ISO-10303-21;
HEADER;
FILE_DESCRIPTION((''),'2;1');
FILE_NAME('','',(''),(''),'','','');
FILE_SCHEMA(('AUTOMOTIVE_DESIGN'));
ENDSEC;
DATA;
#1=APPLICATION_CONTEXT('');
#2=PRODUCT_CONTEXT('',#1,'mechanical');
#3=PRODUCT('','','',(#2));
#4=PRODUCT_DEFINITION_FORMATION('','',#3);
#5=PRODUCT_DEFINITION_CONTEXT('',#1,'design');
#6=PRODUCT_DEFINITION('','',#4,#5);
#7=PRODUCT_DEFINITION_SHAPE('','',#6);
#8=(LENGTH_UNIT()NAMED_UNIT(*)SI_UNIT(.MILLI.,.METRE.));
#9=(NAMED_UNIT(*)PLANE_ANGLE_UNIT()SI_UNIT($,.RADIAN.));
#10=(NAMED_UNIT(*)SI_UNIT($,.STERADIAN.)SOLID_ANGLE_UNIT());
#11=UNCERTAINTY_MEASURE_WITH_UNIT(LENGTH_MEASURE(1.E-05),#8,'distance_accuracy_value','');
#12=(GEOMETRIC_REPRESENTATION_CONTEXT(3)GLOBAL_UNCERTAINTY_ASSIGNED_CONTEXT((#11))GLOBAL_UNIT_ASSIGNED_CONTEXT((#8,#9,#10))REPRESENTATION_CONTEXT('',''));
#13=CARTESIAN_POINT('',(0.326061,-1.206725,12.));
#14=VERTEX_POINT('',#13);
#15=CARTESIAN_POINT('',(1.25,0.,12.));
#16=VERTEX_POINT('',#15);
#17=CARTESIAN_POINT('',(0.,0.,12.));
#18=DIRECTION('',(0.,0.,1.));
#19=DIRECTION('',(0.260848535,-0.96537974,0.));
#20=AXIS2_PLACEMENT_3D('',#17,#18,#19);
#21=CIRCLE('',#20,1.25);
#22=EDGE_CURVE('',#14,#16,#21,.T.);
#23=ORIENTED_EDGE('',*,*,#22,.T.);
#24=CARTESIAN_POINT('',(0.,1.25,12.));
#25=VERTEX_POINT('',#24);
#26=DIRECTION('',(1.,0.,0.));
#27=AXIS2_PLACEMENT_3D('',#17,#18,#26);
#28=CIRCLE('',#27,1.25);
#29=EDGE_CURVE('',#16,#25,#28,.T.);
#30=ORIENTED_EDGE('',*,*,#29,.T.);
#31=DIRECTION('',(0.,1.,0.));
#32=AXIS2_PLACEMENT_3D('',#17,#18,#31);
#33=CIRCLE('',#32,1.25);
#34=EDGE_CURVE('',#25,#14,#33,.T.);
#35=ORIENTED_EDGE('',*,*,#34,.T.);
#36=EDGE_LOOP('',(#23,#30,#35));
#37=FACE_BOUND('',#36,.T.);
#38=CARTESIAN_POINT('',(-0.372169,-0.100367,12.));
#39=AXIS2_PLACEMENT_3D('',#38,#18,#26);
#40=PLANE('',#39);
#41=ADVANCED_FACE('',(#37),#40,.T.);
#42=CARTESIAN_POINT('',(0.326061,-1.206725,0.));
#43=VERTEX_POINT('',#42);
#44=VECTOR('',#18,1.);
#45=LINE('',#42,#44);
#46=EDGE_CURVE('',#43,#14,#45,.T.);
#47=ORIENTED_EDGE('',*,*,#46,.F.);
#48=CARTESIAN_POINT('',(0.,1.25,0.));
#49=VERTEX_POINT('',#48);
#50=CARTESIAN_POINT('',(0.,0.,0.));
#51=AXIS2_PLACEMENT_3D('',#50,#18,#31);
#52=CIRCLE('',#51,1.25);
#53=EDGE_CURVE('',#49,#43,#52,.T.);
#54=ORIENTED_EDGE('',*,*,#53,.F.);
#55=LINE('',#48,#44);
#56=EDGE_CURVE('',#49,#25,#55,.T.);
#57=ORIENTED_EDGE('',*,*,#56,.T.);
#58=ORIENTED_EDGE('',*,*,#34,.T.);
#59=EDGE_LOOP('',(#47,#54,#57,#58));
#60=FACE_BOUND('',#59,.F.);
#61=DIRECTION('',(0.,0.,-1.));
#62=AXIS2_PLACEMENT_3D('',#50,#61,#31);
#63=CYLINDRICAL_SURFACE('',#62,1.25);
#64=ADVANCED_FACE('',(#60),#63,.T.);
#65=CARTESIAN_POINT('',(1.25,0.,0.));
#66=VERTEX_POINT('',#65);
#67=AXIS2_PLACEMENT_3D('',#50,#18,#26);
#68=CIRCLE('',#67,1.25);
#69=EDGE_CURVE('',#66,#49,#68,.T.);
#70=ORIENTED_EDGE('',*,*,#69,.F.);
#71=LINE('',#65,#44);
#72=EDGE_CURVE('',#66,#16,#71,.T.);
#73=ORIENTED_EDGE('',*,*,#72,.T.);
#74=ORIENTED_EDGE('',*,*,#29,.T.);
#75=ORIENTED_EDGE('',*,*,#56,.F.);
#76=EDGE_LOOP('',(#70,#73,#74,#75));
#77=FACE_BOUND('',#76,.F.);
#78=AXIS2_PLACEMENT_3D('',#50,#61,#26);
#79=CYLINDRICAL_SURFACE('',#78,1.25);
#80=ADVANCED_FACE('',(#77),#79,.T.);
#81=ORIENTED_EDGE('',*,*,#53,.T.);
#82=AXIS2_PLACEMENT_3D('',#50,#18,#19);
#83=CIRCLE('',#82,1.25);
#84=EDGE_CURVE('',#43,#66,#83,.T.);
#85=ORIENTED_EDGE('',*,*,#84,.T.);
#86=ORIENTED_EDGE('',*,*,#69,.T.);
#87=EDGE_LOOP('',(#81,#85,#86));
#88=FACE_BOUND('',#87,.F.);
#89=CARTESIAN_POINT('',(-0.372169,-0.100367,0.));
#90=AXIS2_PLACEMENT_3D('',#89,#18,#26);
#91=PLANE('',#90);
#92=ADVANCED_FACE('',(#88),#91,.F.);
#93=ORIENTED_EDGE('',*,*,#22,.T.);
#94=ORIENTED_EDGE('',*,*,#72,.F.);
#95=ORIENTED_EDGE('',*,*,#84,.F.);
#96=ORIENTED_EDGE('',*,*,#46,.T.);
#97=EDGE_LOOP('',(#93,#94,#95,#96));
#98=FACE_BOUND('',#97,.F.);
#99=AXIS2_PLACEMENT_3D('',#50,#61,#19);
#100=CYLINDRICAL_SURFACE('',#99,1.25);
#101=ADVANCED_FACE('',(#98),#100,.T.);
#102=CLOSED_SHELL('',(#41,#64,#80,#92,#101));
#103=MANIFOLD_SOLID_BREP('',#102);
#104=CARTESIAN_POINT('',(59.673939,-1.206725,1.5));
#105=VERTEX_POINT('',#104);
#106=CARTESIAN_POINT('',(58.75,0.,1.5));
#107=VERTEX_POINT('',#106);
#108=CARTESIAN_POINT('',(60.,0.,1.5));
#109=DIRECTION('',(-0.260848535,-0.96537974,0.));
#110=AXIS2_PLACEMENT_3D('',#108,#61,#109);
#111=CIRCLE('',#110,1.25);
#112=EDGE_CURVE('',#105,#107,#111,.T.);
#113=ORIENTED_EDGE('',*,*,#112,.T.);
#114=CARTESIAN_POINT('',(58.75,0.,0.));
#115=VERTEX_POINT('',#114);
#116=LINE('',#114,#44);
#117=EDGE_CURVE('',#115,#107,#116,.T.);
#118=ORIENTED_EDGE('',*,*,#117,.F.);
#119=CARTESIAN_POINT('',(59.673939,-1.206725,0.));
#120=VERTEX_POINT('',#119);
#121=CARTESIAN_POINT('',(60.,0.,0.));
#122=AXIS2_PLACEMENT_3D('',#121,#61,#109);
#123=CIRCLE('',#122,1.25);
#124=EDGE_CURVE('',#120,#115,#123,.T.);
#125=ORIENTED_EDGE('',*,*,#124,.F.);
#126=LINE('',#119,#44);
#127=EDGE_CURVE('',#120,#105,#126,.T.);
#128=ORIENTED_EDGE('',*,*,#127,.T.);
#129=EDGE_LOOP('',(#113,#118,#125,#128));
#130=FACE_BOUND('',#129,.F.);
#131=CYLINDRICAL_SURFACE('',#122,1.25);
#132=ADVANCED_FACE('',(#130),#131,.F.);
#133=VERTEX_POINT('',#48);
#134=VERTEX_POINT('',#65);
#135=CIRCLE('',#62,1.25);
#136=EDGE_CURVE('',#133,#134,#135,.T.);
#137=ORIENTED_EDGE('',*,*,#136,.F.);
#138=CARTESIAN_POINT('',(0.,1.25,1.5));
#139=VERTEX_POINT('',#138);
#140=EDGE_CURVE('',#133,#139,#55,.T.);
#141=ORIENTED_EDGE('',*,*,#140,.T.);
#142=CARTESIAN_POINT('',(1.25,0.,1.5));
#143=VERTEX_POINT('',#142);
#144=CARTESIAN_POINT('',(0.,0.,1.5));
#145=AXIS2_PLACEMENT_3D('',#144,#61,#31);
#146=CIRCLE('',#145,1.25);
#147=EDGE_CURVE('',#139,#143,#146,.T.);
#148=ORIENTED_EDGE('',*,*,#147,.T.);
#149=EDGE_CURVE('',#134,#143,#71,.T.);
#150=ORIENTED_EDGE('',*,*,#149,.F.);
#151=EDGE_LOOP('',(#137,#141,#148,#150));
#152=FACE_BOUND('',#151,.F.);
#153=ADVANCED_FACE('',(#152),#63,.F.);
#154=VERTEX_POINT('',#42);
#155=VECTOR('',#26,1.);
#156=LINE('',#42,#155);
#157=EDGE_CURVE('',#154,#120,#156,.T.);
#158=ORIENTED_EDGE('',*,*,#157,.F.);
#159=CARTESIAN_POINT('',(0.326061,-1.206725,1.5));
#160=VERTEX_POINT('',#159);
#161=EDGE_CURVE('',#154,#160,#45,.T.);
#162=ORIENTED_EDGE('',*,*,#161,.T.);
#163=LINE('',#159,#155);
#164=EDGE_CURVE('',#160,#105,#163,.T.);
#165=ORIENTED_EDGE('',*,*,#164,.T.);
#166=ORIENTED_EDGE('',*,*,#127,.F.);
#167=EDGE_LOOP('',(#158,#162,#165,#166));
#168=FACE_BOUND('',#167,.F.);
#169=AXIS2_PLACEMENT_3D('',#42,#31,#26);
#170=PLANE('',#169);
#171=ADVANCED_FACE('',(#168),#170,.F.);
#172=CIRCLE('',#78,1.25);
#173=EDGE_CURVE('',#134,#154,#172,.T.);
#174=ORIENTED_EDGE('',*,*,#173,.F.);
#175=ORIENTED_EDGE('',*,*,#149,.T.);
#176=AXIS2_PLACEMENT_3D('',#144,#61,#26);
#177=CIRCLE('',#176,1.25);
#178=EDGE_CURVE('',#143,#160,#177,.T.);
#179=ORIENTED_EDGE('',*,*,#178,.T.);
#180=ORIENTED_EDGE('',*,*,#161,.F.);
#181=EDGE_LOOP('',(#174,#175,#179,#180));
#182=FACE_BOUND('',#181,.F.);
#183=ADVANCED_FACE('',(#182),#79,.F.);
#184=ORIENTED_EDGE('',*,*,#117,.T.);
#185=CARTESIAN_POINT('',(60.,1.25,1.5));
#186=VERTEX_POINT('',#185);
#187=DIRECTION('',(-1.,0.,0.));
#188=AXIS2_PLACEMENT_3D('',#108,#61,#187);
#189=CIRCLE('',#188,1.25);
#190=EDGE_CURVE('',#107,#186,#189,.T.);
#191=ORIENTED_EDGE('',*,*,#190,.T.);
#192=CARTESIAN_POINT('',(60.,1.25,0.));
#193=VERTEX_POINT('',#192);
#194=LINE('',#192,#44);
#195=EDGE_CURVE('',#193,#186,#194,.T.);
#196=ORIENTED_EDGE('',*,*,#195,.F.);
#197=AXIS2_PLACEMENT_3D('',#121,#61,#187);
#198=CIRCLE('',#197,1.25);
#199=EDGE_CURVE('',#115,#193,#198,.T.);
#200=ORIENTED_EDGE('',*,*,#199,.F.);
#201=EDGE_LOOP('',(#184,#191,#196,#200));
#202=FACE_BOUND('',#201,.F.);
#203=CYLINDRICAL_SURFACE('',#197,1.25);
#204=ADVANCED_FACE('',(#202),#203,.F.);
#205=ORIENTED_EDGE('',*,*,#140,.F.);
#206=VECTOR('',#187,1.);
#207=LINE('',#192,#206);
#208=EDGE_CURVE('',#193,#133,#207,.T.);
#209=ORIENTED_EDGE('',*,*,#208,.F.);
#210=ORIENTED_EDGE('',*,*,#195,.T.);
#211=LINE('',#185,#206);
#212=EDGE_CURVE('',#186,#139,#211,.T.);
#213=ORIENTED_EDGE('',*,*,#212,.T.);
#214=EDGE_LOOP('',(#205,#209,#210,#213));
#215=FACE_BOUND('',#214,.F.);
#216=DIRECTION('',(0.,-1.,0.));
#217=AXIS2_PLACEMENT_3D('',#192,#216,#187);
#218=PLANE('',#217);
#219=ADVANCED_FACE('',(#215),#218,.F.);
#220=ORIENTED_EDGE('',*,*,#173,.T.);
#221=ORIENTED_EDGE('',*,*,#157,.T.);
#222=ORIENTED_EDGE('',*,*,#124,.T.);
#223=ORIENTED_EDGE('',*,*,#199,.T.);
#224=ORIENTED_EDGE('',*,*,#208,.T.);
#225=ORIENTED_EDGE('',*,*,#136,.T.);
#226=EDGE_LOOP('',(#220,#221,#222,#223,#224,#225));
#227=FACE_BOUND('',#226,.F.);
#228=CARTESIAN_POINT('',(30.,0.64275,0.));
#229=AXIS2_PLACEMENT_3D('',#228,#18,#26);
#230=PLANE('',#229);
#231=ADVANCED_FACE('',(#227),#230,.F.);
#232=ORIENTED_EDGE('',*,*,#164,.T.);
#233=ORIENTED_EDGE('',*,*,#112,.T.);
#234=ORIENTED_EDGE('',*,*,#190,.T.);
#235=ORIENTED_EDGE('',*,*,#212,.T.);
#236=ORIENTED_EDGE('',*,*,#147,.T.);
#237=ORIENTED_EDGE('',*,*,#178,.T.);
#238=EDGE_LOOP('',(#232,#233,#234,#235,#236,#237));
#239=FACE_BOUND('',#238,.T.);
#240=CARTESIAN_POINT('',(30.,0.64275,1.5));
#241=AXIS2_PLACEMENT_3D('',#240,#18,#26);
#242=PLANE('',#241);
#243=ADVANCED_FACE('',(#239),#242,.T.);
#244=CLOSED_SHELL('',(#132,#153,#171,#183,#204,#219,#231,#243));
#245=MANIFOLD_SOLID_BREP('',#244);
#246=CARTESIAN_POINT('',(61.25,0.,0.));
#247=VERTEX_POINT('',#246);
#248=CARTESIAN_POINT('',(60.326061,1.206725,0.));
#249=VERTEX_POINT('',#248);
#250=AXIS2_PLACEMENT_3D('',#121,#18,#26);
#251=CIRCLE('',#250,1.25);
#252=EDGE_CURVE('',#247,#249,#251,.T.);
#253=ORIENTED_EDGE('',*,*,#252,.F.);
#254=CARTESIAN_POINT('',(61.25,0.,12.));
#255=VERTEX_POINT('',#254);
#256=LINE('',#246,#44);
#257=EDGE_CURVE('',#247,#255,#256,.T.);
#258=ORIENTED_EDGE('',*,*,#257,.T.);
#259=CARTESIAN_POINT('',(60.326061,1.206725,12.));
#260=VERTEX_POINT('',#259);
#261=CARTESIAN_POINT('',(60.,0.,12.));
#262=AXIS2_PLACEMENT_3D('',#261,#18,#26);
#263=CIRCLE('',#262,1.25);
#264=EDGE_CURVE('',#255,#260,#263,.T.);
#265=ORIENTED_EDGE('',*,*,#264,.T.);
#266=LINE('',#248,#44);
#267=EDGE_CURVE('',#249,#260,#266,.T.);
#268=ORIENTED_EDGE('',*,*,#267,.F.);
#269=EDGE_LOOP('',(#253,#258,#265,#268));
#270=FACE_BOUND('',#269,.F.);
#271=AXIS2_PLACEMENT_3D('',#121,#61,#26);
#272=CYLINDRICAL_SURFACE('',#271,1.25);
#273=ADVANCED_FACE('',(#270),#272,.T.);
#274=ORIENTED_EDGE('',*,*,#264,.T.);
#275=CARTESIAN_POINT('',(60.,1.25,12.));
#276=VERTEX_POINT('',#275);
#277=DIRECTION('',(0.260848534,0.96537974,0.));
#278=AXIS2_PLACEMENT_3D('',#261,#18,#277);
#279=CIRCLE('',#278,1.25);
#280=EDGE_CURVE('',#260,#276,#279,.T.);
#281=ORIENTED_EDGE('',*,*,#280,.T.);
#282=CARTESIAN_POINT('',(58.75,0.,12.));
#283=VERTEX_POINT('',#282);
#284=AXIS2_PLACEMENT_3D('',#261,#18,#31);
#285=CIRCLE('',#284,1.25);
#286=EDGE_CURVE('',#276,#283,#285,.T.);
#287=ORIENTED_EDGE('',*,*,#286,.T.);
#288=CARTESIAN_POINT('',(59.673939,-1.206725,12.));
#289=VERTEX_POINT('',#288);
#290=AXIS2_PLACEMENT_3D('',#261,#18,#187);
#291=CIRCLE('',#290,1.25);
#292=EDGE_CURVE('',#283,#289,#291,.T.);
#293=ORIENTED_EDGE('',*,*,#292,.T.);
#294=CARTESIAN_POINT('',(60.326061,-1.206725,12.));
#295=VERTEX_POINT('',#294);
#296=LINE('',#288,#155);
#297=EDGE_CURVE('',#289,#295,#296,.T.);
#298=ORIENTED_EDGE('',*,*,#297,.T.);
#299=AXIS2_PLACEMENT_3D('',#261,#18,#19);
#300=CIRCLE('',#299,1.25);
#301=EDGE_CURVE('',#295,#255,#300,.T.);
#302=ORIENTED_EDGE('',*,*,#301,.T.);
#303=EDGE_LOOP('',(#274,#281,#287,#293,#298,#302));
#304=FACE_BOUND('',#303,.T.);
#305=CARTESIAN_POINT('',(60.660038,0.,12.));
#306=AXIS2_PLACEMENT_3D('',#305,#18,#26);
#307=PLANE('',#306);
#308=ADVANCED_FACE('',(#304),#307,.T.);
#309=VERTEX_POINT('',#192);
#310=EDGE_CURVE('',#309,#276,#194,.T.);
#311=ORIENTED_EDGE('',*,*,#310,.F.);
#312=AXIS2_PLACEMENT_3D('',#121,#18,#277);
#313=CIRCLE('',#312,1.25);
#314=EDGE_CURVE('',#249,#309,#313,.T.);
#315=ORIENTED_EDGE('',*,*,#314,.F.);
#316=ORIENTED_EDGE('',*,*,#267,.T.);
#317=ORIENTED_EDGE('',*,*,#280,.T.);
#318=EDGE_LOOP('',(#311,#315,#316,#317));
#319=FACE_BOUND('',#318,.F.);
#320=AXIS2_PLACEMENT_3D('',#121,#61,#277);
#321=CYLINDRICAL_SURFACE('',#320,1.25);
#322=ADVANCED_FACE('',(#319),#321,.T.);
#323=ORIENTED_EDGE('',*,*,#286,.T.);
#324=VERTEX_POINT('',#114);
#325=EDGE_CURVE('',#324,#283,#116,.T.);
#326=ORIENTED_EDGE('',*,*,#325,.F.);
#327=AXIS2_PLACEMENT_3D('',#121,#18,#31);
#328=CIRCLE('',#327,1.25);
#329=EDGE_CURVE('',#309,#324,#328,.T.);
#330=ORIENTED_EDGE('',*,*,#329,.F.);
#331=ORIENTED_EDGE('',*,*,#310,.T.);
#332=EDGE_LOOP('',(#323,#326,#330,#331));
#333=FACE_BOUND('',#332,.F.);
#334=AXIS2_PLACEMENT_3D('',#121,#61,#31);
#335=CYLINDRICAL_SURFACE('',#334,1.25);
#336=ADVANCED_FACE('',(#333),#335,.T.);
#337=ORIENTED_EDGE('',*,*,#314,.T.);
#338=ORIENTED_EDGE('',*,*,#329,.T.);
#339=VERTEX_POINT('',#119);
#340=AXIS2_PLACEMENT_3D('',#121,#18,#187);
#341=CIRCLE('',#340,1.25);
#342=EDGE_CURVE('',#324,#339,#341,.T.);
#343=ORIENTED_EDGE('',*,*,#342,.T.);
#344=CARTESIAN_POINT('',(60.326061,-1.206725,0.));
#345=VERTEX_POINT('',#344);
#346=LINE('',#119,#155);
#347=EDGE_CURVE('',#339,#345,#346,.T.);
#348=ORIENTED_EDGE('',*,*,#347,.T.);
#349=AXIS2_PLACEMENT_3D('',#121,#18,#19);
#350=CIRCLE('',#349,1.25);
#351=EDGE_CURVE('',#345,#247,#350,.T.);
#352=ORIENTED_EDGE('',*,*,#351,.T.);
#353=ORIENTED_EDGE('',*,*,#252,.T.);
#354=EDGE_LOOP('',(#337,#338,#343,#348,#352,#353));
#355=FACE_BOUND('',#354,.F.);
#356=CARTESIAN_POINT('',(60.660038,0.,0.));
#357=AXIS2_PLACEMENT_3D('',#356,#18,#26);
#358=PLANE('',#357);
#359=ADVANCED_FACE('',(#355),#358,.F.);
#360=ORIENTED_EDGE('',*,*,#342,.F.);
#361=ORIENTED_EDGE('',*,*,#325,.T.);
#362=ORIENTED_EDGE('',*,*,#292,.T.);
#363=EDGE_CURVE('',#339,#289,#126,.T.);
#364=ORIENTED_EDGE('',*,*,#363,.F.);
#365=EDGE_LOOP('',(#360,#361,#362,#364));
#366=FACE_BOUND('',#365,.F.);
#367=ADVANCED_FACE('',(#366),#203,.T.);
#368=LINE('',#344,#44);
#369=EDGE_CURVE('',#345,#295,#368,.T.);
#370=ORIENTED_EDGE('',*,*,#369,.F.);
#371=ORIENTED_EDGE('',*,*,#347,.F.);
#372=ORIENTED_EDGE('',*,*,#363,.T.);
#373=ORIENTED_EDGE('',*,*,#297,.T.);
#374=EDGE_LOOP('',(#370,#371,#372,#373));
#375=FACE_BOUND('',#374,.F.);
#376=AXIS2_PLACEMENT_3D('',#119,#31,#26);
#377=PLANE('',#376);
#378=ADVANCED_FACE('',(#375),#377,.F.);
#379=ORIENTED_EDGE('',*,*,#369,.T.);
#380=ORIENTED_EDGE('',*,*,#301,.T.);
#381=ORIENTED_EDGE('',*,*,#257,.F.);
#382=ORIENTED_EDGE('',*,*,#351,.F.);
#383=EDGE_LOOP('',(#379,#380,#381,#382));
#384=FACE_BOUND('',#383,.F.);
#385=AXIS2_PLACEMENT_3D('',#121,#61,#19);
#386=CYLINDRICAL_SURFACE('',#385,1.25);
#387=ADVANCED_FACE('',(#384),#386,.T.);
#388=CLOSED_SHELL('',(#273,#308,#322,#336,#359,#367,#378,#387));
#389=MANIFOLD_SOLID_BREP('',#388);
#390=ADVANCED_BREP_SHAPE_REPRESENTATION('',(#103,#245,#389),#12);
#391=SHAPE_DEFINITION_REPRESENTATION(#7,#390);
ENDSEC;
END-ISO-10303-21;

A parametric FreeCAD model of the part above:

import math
import FreeCAD as App
import Part
import Sketcher

V = App.Vector

doc = App.newDocument("Part")
body = doc.addObject("PartDesign::Body", "Body")

# Sketch on XY plane
sketch1 = body.newObject("Sketcher::SketchObject", "Sketch")
sketch1.AttachmentSupport = (doc.getObject("XY_Plane"), [""])
sketch1.MapMode = "FlatFace"
sketch1.addGeometry(Part.ArcOfCircle(Part.Circle(V(0, 0, 0), V(0, 0, 1), 1.2), math.radians(90), math.radians(285)), False)
sketch1.addGeometry(Part.ArcOfCircle(Part.Circle(V(0, 0, 0), V(0, 0, 1), 1.2), math.radians(-75), math.radians(0)), False)
sketch1.addGeometry(Part.ArcOfCircle(Part.Circle(V(0, 0, 0), V(0, 0, 1), 1.2), math.radians(0), math.radians(90)), False)
sketch1.addConstraint(Sketcher.Constraint("Tangent", 0, 2, 1, 1))
sketch1.addConstraint(Sketcher.Constraint("Tangent", 1, 2, 2, 1))
sketch1.addConstraint(Sketcher.Constraint("Tangent", 2, 2, 0, 1))
sketch1.addConstraint(Sketcher.Constraint("Coincident", 0, 3, -1, 1))
sketch1.addConstraint(Sketcher.Constraint("PointOnObject", 1, 2, -1))
sketch1.addConstraint(Sketcher.Constraint("PointOnObject", 2, 2, -2))
sketch1.addConstraint(Sketcher.Constraint("Radius", 0, 1.25))
sketch1.addConstraint(Sketcher.Constraint("DistanceX", -1, 1, 0, 2, 0.326061))
pad1 = body.newObject("PartDesign::Pad", "Pad")
pad1.Profile = sketch1
pad1.Length = 12
body2 = doc.addObject("PartDesign::Body", "Body001")

# Sketch on XY plane
sketch2 = body2.newObject("Sketcher::SketchObject", "Sketch001")
sketch2.AttachmentSupport = (doc.getObject("XY_Plane001"), [""])
sketch2.MapMode = "FlatFace"
sketch2.addGeometry(Part.ArcOfCircle(Part.Circle(V(60, 0, 0), V(0, 0, 1), 1.25), math.radians(0), math.radians(75)), False)
sketch2.addGeometry(Part.ArcOfCircle(Part.Circle(V(60, 0, 0), V(0, 0, 1), 1.25), math.radians(74.88), math.radians(90)), False)
sketch2.addGeometry(Part.ArcOfCircle(Part.Circle(V(60, 0, 0), V(0, 0, 1), 1.25), math.radians(90), math.radians(180)), False)
sketch2.addGeometry(Part.ArcOfCircle(Part.Circle(V(60, 0, 0), V(0, 0, 1), 1.25), math.radians(180), math.radians(255)), False)
sketch2.addGeometry(Part.LineSegment(V(59.67, -1.21, 0), V(60.33, -1.21, 0)), False)
sketch2.addGeometry(Part.ArcOfCircle(Part.Circle(V(60, 0, 0), V(0, 0, 1), 1.25), math.radians(-75), math.radians(0)), False)
sketch2.addConstraint(Sketcher.Constraint("Tangent", 0, 2, 1, 1))
sketch2.addConstraint(Sketcher.Constraint("Tangent", 1, 2, 2, 1))
sketch2.addConstraint(Sketcher.Constraint("Tangent", 2, 2, 3, 1))
sketch2.addConstraint(Sketcher.Constraint("Coincident", 3, 2, 4, 1))
sketch2.addConstraint(Sketcher.Constraint("Coincident", 4, 2, 5, 1))
sketch2.addConstraint(Sketcher.Constraint("Tangent", 5, 2, 0, 1))
sketch2.addConstraint(Sketcher.Constraint("Horizontal", 4))
sketch2.addConstraint(Sketcher.Constraint("Coincident", 2, 3, 0, 3))
sketch2.addConstraint(Sketcher.Constraint("Equal", 2, 3))
sketch2.addConstraint(Sketcher.Constraint("Equal", 3, 5))
sketch2.addConstraint(Sketcher.Constraint("Symmetric", 0, 2, 4, 2, -1))
sketch2.addConstraint(Sketcher.Constraint("PointOnObject", 2, 2, -1))
sketch2.addConstraint(Sketcher.Constraint("PointOnObject", 5, 2, -1))
sketch2.addConstraint(Sketcher.Constraint("Vertical", 5, 3, 1, 2))
sketch2.addConstraint(Sketcher.Constraint("Radius", 0, 1.25))
sketch2.addConstraint(Sketcher.Constraint("DistanceX", -1, 1, 0, 3, 60.0))
sketch2.addConstraint(Sketcher.Constraint("DistanceX", 4, 1, 4, 2, 0.652121))
pad2 = body2.newObject("PartDesign::Pad", "Pad001")
pad2.Profile = sketch2
pad2.Length = 12
body3 = doc.addObject("PartDesign::Body", "Body002")

# Sketch on XY plane
sketch3 = body3.newObject("Sketcher::SketchObject", "Sketch002")
sketch3.AttachmentSupport = (doc.getObject("XY_Plane002"), [""])
sketch3.MapMode = "FlatFace"
sketch3.addGeometry(Part.ArcOfCircle(Part.Circle(V(0, 0, 0), V(0, 0, 1), 1.2), math.radians(0), math.radians(90)), False)
sketch3.addGeometry(Part.ArcOfCircle(Part.Circle(V(0, 0, 0), V(0, 0, 1), 1.2), math.radians(-75), math.radians(0)), False)
sketch3.addGeometry(Part.LineSegment(V(0.3, -1.2, 0), V(59.7, -1.2, 0)), False)
sketch3.addGeometry(Part.ArcOfCircle(Part.Circle(V(60, 0, 0), V(0, 0, 1), 1.2), math.radians(180), math.radians(255)), False)
sketch3.addGeometry(Part.ArcOfCircle(Part.Circle(V(60, 0, 0), V(0, 0, 1), 1.2), math.radians(90), math.radians(180)), False)
sketch3.addGeometry(Part.LineSegment(V(60, 1.2, 0), V(0, 1.2, 0)), False)
sketch3.addConstraint(Sketcher.Constraint("Tangent", 0, 1, 1, 2))
sketch3.addConstraint(Sketcher.Constraint("Coincident", 1, 1, 2, 1))
sketch3.addConstraint(Sketcher.Constraint("Coincident", 2, 2, 3, 2))
sketch3.addConstraint(Sketcher.Constraint("Tangent", 3, 1, 4, 2))
sketch3.addConstraint(Sketcher.Constraint("Tangent", 4, 1, 5, 1))
sketch3.addConstraint(Sketcher.Constraint("Tangent", 5, 2, 0, 2))
sketch3.addConstraint(Sketcher.Constraint("Horizontal", 2))
sketch3.addConstraint(Sketcher.Constraint("Horizontal", 5))
sketch3.addConstraint(Sketcher.Constraint("Coincident", 0, 3, -1, 1))
sketch3.addConstraint(Sketcher.Constraint("Equal", 0, 1))
sketch3.addConstraint(Sketcher.Constraint("Equal", 1, 3))
sketch3.addConstraint(Sketcher.Constraint("Equal", 3, 4))
sketch3.addConstraint(Sketcher.Constraint("PointOnObject", 0, 1, -1))
sketch3.addConstraint(Sketcher.Constraint("PointOnObject", 3, 1, -1))
sketch3.addConstraint(Sketcher.Constraint("DistanceX", 5, 2, 5, 1, 60.0))
sketch3.addConstraint(Sketcher.Constraint("Radius", 0, 1.25))
sketch3.addConstraint(Sketcher.Constraint("DistanceX", 2, 1, 2, 2, 59.347879))
pad3 = body3.newObject("PartDesign::Pad", "Pad002")
pad3.Profile = sketch3
pad3.Length = 1.5

doc.recompute()
